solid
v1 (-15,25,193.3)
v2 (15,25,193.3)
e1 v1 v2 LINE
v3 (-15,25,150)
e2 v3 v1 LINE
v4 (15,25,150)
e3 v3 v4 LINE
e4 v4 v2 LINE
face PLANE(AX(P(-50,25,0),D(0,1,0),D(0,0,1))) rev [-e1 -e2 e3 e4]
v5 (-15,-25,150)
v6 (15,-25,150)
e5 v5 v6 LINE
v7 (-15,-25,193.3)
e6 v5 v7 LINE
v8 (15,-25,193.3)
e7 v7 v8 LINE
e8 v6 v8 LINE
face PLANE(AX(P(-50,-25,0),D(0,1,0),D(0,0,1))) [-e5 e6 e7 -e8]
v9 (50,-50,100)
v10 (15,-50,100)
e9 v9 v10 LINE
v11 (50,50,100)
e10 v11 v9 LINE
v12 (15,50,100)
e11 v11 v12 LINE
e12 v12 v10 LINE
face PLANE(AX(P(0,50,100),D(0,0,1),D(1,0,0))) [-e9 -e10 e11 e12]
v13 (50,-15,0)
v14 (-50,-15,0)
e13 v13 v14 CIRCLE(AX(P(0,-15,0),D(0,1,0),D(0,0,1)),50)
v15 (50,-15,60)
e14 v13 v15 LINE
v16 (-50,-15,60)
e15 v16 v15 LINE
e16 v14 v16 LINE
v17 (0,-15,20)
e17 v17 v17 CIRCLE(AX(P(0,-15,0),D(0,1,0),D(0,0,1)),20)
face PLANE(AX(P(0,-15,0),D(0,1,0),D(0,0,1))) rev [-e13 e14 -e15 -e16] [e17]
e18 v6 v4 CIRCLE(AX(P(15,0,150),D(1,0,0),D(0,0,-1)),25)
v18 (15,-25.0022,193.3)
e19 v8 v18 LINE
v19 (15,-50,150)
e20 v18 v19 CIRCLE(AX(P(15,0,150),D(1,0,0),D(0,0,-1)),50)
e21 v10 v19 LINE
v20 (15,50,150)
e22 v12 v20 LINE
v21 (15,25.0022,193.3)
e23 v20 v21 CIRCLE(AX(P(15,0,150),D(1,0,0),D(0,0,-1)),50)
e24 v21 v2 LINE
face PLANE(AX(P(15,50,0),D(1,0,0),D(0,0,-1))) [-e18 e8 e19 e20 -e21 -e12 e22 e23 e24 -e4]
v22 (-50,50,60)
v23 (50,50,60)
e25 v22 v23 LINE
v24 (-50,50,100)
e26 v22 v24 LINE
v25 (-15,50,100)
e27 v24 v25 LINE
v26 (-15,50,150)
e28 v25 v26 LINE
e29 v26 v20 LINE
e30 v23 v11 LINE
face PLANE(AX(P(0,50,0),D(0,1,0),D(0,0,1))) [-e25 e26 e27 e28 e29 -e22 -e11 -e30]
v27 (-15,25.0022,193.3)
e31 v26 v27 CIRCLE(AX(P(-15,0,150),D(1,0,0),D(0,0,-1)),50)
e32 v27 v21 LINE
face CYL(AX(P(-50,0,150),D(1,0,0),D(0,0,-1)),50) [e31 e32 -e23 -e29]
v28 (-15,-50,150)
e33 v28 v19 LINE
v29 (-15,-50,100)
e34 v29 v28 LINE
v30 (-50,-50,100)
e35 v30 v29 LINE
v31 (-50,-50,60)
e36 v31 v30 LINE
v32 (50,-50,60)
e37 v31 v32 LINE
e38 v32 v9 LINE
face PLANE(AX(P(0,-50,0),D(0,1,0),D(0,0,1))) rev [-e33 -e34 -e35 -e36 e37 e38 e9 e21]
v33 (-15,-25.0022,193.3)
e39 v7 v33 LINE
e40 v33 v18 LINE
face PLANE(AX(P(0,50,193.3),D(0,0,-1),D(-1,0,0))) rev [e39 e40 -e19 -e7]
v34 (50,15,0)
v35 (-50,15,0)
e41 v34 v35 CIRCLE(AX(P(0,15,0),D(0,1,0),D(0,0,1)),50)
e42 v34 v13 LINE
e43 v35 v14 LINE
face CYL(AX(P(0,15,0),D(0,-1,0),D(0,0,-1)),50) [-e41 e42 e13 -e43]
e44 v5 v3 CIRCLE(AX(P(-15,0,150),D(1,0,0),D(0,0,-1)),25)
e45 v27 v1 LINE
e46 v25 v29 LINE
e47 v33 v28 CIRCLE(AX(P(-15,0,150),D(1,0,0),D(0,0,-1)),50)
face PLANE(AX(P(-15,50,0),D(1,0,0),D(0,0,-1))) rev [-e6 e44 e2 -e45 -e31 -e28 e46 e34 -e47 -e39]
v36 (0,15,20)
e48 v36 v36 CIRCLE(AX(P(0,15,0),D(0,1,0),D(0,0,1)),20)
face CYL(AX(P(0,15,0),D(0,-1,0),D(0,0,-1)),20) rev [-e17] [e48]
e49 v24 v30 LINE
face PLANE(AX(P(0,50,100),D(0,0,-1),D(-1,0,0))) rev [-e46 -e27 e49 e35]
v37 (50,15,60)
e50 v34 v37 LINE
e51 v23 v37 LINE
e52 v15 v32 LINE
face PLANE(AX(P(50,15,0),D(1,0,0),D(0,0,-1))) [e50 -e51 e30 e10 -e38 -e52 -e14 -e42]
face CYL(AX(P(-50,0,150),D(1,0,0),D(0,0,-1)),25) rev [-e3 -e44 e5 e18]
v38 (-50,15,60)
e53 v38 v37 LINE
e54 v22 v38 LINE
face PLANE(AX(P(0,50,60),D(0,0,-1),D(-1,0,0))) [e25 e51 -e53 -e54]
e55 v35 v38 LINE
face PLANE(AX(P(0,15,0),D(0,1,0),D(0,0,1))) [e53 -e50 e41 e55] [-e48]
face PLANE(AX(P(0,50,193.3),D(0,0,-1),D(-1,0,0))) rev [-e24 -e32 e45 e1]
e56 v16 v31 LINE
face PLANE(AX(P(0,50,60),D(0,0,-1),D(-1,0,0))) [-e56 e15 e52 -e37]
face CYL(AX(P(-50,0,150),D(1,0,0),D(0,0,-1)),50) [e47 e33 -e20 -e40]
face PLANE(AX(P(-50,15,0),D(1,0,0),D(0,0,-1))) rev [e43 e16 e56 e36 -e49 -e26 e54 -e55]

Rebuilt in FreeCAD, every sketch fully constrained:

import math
import FreeCAD as App
import Part
import Sketcher

V = App.Vector
Q = App.Units.Quantity

doc = App.newDocument("Part")
params = doc.addObject("Spreadsheet::Sheet", "Params")
for row, (alias, value) in enumerate([
    ("sketch1_diameter", "40 mm"),
    ("sketch1_radius", "50 mm"),
    ("sketch1_height", "60 mm"),
    ("pad1_length", "30 mm"),
    ("sketch2_width", "35 mm"),
    ("sketch2_width2", "30 mm"),
    ("sketch2_height", "40 mm"),
    ("sketch2_height2", "93.3 mm"),
    ("pad2_length", "100 mm"),
    ("sketch3_radius", "50 mm"),
    ("sketch3_radius2", "25 mm"),
    ("sketch3_height", "43.3 mm"),
], start=1):
    params.set(f"A{row}", alias)
    params.set(f"B{row}", "=" + value)
    params.setAlias(f"B{row}", alias)

body = doc.addObject("PartDesign::Body", "Body")

sketch1 = doc.addObject("Sketcher::SketchObject", "Sketch")
body.addObject(sketch1)
sketch1.AttachmentSupport = (doc.XZ_Plane, [""])
sketch1.MapMode = "FlatFace"
sketch1.addGeometry([
    Part.ArcOfCircle(Part.Circle(V(0, 0, 0), V(0, 0, 1), 50), math.radians(180), math.radians(360)),
    Part.LineSegment(V(-50, 0, 0), V(-50, 60, 0)),
    Part.LineSegment(V(-50, 60, 0), V(50, 60, 0)),
    Part.LineSegment(V(50, 60, 0), V(50, 0, 0)),
    Part.Circle(V(0, 0, 0), V(0, 0, 1), 20),
], False)
sketch1.addConstraint([
    Sketcher.Constraint("Tangent", 0, 1, 1, 1),
    Sketcher.Constraint("Coincident", 1, 2, 2, 1),
    Sketcher.Constraint("Coincident", 2, 2, 3, 1),
    Sketcher.Constraint("Tangent", 3, 2, 0, 2),
    Sketcher.Constraint("Vertical", 1),
    Sketcher.Constraint("Horizontal", 2),
    Sketcher.Constraint("Vertical", 3),
    Sketcher.Constraint("Coincident", 0, 3, -1, 1),
    Sketcher.Constraint("Coincident", 4, 3, -1, 1),
    Sketcher.Constraint("Diameter", 4, Q("40 mm")),
    Sketcher.Constraint("Radius", 0, Q("50 mm")),
    Sketcher.Constraint("DistanceY", 1, 1, 1, 2, Q("60 mm")),
])
sketch1.setExpression("Constraints[9]", "Params.sketch1_diameter")
sketch1.setExpression("Constraints[10]", "Params.sketch1_radius")
sketch1.setExpression("Constraints[11]", "Params.sketch1_height")
pad1 = doc.addObject("PartDesign::Pad", "Pad")
body.addObject(pad1)
pad1.Profile = sketch1
pad1.setExpression("Length", "Params.pad1_length")
pad1.Midplane = True

sketch2 = doc.addObject("Sketcher::SketchObject", "Sketch001")
body.addObject(sketch2)
sketch2.AttachmentSupport = (doc.XZ_Plane, [""])
sketch2.MapMode = "FlatFace"
sketch2.addGeometry([
    Part.LineSegment(V(-50, 60, 0), V(-50, 100, 0)),
    Part.LineSegment(V(-50, 100, 0), V(-15, 100, 0)),
    Part.LineSegment(V(-15, 100, 0), V(-15, 193.3, 0)),
    Part.LineSegment(V(-15, 193.3, 0), V(15, 193.3, 0)),
    Part.LineSegment(V(15, 193.3, 0), V(15, 100, 0)),
    Part.LineSegment(V(15, 100, 0), V(50, 100, 0)),
    Part.LineSegment(V(50, 100, 0), V(50, 60, 0)),
    Part.LineSegment(V(50, 60, 0), V(-50, 60, 0)),
], False)
sketch2.addConstraint([
    Sketcher.Constraint("Coincident", 0, 2, 1, 1),
    Sketcher.Constraint("Coincident", 1, 2, 2, 1),
    Sketcher.Constraint("Coincident", 2, 2, 3, 1),
    Sketcher.Constraint("Coincident", 3, 2, 4, 1),
    Sketcher.Constraint("Coincident", 4, 2, 5, 1),
    Sketcher.Constraint("Coincident", 5, 2, 6, 1),
    Sketcher.Constraint("Coincident", 6, 2, 7, 1),
    Sketcher.Constraint("Coincident", 7, 2, 0, 1),
    Sketcher.Constraint("Vertical", 0),
    Sketcher.Constraint("Horizontal", 1),
    Sketcher.Constraint("Vertical", 2),
    Sketcher.Constraint("Horizontal", 3),
    Sketcher.Constraint("Vertical", 4),
    Sketcher.Constraint("Horizontal", 5),
    Sketcher.Constraint("Vertical", 6),
    Sketcher.Constraint("Horizontal", 7),
    Sketcher.Constraint("Symmetric", 1, 2, 4, 2, -2),
    Sketcher.Constraint("Equal", 1, 5),
    Sketcher.Constraint("DistanceX", 1, 1, 1, 2, Q("35 mm")),
    Sketcher.Constraint("DistanceX", 3, 1, 3, 2, Q("30 mm")),
    Sketcher.Constraint("DistanceY", 0, 1, 0, 2, Q("40 mm")),
    Sketcher.Constraint("DistanceY", 2, 1, 2, 2, Q("93.3 mm")),
    Sketcher.Constraint("DistanceY", -1, 1, 0, 2, Q("100 mm")),
])
sketch2.setExpression("Constraints[18]", "Params.sketch2_width")
sketch2.setExpression("Constraints[19]", "Params.sketch2_width2")
sketch2.setExpression("Constraints[20]", "Params.sketch2_height")
sketch2.setExpression("Constraints[21]", "Params.sketch2_height2")
pad2 = doc.addObject("PartDesign::Pad", "Pad001")
body.addObject(pad2)
pad2.Profile = sketch2
pad2.setExpression("Length", "Params.pad2_length")
pad2.Midplane = True

sketch3 = doc.addObject("Sketcher::SketchObject", "Sketch002")
body.addObject(sketch3)
sketch3.AttachmentSupport = (doc.YZ_Plane, [""])
sketch3.MapMode = "FlatFace"
sketch3.AttachmentOffset = App.Placement(V(0, 0, 15), App.Rotation())
sketch3.addGeometry([
    Part.LineSegment(V(50, 193.3, 0), V(25.0022, 193.3, 0)),
    Part.ArcOfCircle(Part.Circle(V(0, 150, 0), V(0, 0, 1), 50), math.radians(0), math.radians(59.997089)),
    Part.LineSegment(V(50, 150, 0), V(50, 193.3, 0)),
    Part.ArcOfCircle(Part.Circle(V(0, 150, 0), V(0, 0, 1), 25), math.radians(180), math.radians(360)),
    Part.LineSegment(V(25, 150, 0), V(25, 193.3, 0)),
    Part.LineSegment(V(25, 193.3, 0), V(-25, 193.3, 0)),
    Part.LineSegment(V(-25, 193.3, 0), V(-25, 150, 0)),
    Part.ArcOfCircle(Part.Circle(V(0, 150, 0), V(0, 0, 1), 50), math.radians(120.002911), math.radians(180)),
    Part.LineSegment(V(-25.0022, 193.3, 0), V(-50, 193.3, 0)),
    Part.LineSegment(V(-50, 193.3, 0), V(-50, 150, 0)),
], False)
sketch3.addConstraint([
    Sketcher.Constraint("Coincident", 0, 2, 1, 2),
    Sketcher.Constraint("Tangent", 1, 1, 2, 1),
    Sketcher.Constraint("Coincident", 2, 2, 0, 1),
    Sketcher.Constraint("Tangent", 3, 2, 4, 1),
    Sketcher.Constraint("Coincident", 4, 2, 5, 1),
    Sketcher.Constraint("Coincident", 5, 2, 6, 1),
    Sketcher.Constraint("Tangent", 6, 2, 3, 1),
    Sketcher.Constraint("Coincident", 7, 1, 8, 1),
    Sketcher.Constraint("Coincident", 8, 2, 9, 1),
    Sketcher.Constraint("Tangent", 9, 2, 7, 2),
    Sketcher.Constraint("Horizontal", 0),
    Sketcher.Constraint("Vertical", 2),
    Sketcher.Constraint("Vertical", 4),
    Sketcher.Constraint("Horizontal", 5),
    Sketcher.Constraint("Vertical", 6),
    Sketcher.Constraint("Horizontal", 8),
    Sketcher.Constraint("Vertical", 9),
    Sketcher.Constraint("Coincident", 3, 3, 1, 3),
    Sketcher.Constraint("Coincident", 7, 3, 1, 3),
    Sketcher.Constraint("Equal", 1, 7),
    Sketcher.Constraint("Symmetric", 0, 2, 7, 1, -2),
    Sketcher.Constraint("Horizontal", 2, 2, 4, 2),
    Sketcher.Constraint("Radius", 1, Q("50 mm")),
    Sketcher.Constraint("Radius", 3, Q("25 mm")),
    Sketcher.Constraint("DistanceY", 2, 1, 2, 2, Q("43.3 mm")),
    Sketcher.Constraint("DistanceY", -1, 1, 1, 3, Q("150 mm")),
])
sketch3.setExpression("Constraints[22]", "Params.sketch3_radius")
sketch3.setExpression("Constraints[23]", "Params.sketch3_radius2")
sketch3.setExpression("Constraints[24]", "Params.sketch3_height")
pocket1 = doc.addObject("PartDesign::Pocket", "Pocket")
body.addObject(pocket1)
pocket1.Profile = sketch3
pocket1.Type = "ThroughAll"

doc.recompute()
